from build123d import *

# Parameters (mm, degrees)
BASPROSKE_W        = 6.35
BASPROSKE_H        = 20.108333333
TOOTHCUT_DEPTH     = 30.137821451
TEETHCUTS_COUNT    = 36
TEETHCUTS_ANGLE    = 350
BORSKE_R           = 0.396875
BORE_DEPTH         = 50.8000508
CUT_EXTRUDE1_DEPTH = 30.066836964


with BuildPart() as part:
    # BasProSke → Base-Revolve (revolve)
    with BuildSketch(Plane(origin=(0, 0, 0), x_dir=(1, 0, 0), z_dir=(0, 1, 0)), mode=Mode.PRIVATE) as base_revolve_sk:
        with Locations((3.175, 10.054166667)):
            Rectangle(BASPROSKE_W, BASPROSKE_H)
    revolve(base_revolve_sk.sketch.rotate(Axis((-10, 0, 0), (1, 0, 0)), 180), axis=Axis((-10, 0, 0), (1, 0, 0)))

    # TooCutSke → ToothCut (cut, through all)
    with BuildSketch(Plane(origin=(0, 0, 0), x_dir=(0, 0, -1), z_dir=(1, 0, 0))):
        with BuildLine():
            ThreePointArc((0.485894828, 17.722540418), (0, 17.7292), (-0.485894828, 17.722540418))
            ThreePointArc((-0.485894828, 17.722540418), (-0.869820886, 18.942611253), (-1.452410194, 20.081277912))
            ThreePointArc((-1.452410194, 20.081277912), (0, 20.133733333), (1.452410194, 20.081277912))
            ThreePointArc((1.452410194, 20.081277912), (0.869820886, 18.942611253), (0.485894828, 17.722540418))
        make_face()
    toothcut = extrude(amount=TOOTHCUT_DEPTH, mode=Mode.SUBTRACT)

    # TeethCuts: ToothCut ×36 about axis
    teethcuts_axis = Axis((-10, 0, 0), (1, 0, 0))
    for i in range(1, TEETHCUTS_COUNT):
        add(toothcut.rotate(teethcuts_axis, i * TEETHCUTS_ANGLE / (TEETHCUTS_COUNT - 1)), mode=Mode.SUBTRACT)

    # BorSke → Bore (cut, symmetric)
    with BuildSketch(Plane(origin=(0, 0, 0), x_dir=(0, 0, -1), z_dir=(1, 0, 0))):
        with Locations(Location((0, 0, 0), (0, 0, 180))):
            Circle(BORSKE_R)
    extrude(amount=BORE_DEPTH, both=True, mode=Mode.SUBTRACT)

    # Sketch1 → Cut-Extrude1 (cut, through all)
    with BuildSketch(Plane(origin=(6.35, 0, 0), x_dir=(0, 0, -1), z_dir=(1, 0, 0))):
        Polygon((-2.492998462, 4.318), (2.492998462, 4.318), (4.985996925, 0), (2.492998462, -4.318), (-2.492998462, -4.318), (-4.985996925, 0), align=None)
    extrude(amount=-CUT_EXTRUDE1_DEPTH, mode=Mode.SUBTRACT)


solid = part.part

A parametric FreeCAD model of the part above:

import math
import FreeCAD as App
import Part
import Sketcher
Q = App.Units.Quantity

doc = App.newDocument("Part")
body = doc.addObject("PartDesign::Body", "Body")

sketch1 = body.newObject("Sketcher::SketchObject", "Sketch")
sketch1.AttachmentSupport = (doc.getObject("XZ_Plane"), [""])
sketch1.MapMode = "FlatFace"
sketch1.addGeometry([
    Part.LineSegment(App.Vector(0, -20, 0), App.Vector(0, 0, 0)),
    Part.LineSegment(App.Vector(0, 0, 0), App.Vector(6, 0, 0)),
    Part.LineSegment(App.Vector(6, 0, 0), App.Vector(6, -20, 0)),
    Part.LineSegment(App.Vector(6, -20, 0), App.Vector(0, -20, 0)),
], False)
sketch1.addConstraint([
    Sketcher.Constraint("Coincident", 0, 2, 1, 1),
    Sketcher.Constraint("Coincident", 1, 2, 2, 1),
    Sketcher.Constraint("Coincident", 2, 2, 3, 1),
    Sketcher.Constraint("Coincident", 3, 2, 0, 1),
    Sketcher.Constraint("Vertical", 0),
    Sketcher.Constraint("Horizontal", 1),
    Sketcher.Constraint("Vertical", 2),
    Sketcher.Constraint("Horizontal", 3),
    Sketcher.Constraint("Coincident", 0, 2, -1, 1),
    Sketcher.Constraint("DistanceX", 1, 1, 1, 2, Q("0.25 in")),
    Sketcher.Constraint("DistanceY", 0, 1, 0, 2, Q("20.108333 mm")),
])
revolution = body.newObject("PartDesign::Revolution", "Revolution")
revolution.Profile = sketch1
revolution.ReferenceAxis = (sketch1, ["H_Axis"])
revolution.Angle = 360

sketch2 = body.newObject("Sketcher::SketchObject", "Sketch001")
sketch2.AttachmentSupport = (doc.getObject("YZ_Plane"), [""])
sketch2.MapMode = "FlatFace"
sketch2.addGeometry([
    Part.ArcOfCircle(Part.Circle(App.Vector(0, 0, 0), App.Vector(0, 0, 1), 17.7), math.radians(-1.57), math.radians(1.57)),
    Part.ArcOfCircle(Part.Circle(App.Vector(16.1, -7.9, 0), App.Vector(0, 0, 1), 7.6), math.radians(58.09), math.radians(77.35)),
    Part.ArcOfCircle(Part.Circle(App.Vector(0, 0, 0), App.Vector(0, 0, 1), 20.1), math.radians(-4.14), math.radians(4.14)),
    Part.ArcOfCircle(Part.Circle(App.Vector(16.1, 7.9, 0), App.Vector(0, 0, 1), 7.6), math.radians(-77.35), math.radians(-58.09)),
], False)
sketch2.addConstraint([
    Sketcher.Constraint("Coincident", 0, 1, 1, 2),
    Sketcher.Constraint("Coincident", 1, 1, 2, 1),
    Sketcher.Constraint("Coincident", 2, 2, 3, 2),
    Sketcher.Constraint("Coincident", 3, 1, 0, 2),
    Sketcher.Constraint("Coincident", 0, 3, -1, 1),
    Sketcher.Constraint("Coincident", 2, 3, -1, 1),
    Sketcher.Constraint("Equal", 1, 3),
    Sketcher.Constraint("Symmetric", 1, 3, 3, 3, -1),
    Sketcher.Constraint("Radius", 1, Q("0.3 in")),
    Sketcher.Constraint("Radius", 0, Q("0.698 in")),
    Sketcher.Constraint("Radius", 2, Q("20.133734 mm")),
    Sketcher.Constraint("DistanceX", -1, 1, 1, 3, Q("16.05339 mm")),
    Sketcher.Constraint("DistanceX", -1, 1, 0, 1, Q("17.72254 mm")),
])
pocket1 = body.newObject("PartDesign::Pocket", "Pocket")
pocket1.Profile = sketch2
pocket1.Type = "ThroughAll"
pocket1.Reversed = True
doc.recompute()

polarpattern = body.newObject("PartDesign::PolarPattern", "PolarPattern")
polarpattern.Originals = [pocket1]
polarpattern.Axis = (doc.getObject("X_Axis"), [""])
polarpattern.Angle = 360
polarpattern.Occurrences = 36
body.Tip = polarpattern

sketch3 = body.newObject("Sketcher::SketchObject", "Sketch002")
sketch3.AttachmentSupport = (doc.getObject("YZ_Plane"), [""])
sketch3.MapMode = "FlatFace"
sketch3.addGeometry(Part.Circle(App.Vector(0, 0, 0), App.Vector(0, 0, 1), 0.4), False)
sketch3.addConstraint([
    Sketcher.Constraint("Coincident", 0, 3, -1, 1),
    Sketcher.Constraint("Diameter", 0, Q("0.03125 in")),
])
pocket2 = body.newObject("PartDesign::Pocket", "Pocket001")
pocket2.Profile = sketch3
pocket2.Length = 101.600102
pocket2.Midplane = True

sketch4 = body.newObject("Sketcher::SketchObject", "Sketch003")
sketch4.AttachmentSupport = (doc.getObject("YZ_Plane"), [""])
sketch4.MapMode = "FlatFace"
sketch4.AttachmentOffset = App.Placement(App.Vector(0, 0, 0.25 * 25.4), App.Rotation())
sketch4.addGeometry([
    Part.LineSegment(App.Vector(4.3, -2.5, 0), App.Vector(4.3, 2.5, 0)),
    Part.LineSegment(App.Vector(4.3, 2.5, 0), App.Vector(0, 5, 0)),
    Part.LineSegment(App.Vector(0, 5, 0), App.Vector(-4.3, 2.5, 0)),
    Part.LineSegment(App.Vector(-4.3, 2.5, 0), App.Vector(-4.3, -2.5, 0)),
    Part.LineSegment(App.Vector(-4.3, -2.5, 0), App.Vector(0, -5, 0)),
    Part.LineSegment(App.Vector(0, -5, 0), App.Vector(4.3, -2.5, 0)),
], False)
sketch4.addConstraint([
    Sketcher.Constraint("Coincident", 0, 2, 1, 1),
    Sketcher.Constraint("Coincident", 1, 2, 2, 1),
    Sketcher.Constraint("Coincident", 2, 2, 3, 1),
    Sketcher.Constraint("Coincident", 3, 2, 4, 1),
    Sketcher.Constraint("Coincident", 4, 2, 5, 1),
    Sketcher.Constraint("Coincident", 5, 2, 0, 1),
    Sketcher.Constraint("Vertical", 0),
    Sketcher.Constraint("Vertical", 3),
    Sketcher.Constraint("Symmetric", 0, 2, 3, 2, -1, 1),
    Sketcher.Constraint("Symmetric", 1, 2, 4, 2, -1, 1),
    Sketcher.Constraint("PointOnObject", 1, 2, -2),
    Sketcher.Constraint("Parallel", 2, 5),
    Sketcher.Constraint("Horizontal", 0, 2, 2, 2),
    Sketcher.Constraint("Angle", 1, Q("150 deg")),
    Sketcher.Constraint("DistanceX", -1, 1, 0, 2, Q("0.17 in")),
    Sketcher.Constraint("DistanceY", -1, 1, 0, 2, Q("2.492998 mm")),
])
pocket3 = body.newObject("PartDesign::Pocket", "Pocket002")
pocket3.Profile = sketch4
pocket3.Type = "ThroughAll"

doc.recompute()
